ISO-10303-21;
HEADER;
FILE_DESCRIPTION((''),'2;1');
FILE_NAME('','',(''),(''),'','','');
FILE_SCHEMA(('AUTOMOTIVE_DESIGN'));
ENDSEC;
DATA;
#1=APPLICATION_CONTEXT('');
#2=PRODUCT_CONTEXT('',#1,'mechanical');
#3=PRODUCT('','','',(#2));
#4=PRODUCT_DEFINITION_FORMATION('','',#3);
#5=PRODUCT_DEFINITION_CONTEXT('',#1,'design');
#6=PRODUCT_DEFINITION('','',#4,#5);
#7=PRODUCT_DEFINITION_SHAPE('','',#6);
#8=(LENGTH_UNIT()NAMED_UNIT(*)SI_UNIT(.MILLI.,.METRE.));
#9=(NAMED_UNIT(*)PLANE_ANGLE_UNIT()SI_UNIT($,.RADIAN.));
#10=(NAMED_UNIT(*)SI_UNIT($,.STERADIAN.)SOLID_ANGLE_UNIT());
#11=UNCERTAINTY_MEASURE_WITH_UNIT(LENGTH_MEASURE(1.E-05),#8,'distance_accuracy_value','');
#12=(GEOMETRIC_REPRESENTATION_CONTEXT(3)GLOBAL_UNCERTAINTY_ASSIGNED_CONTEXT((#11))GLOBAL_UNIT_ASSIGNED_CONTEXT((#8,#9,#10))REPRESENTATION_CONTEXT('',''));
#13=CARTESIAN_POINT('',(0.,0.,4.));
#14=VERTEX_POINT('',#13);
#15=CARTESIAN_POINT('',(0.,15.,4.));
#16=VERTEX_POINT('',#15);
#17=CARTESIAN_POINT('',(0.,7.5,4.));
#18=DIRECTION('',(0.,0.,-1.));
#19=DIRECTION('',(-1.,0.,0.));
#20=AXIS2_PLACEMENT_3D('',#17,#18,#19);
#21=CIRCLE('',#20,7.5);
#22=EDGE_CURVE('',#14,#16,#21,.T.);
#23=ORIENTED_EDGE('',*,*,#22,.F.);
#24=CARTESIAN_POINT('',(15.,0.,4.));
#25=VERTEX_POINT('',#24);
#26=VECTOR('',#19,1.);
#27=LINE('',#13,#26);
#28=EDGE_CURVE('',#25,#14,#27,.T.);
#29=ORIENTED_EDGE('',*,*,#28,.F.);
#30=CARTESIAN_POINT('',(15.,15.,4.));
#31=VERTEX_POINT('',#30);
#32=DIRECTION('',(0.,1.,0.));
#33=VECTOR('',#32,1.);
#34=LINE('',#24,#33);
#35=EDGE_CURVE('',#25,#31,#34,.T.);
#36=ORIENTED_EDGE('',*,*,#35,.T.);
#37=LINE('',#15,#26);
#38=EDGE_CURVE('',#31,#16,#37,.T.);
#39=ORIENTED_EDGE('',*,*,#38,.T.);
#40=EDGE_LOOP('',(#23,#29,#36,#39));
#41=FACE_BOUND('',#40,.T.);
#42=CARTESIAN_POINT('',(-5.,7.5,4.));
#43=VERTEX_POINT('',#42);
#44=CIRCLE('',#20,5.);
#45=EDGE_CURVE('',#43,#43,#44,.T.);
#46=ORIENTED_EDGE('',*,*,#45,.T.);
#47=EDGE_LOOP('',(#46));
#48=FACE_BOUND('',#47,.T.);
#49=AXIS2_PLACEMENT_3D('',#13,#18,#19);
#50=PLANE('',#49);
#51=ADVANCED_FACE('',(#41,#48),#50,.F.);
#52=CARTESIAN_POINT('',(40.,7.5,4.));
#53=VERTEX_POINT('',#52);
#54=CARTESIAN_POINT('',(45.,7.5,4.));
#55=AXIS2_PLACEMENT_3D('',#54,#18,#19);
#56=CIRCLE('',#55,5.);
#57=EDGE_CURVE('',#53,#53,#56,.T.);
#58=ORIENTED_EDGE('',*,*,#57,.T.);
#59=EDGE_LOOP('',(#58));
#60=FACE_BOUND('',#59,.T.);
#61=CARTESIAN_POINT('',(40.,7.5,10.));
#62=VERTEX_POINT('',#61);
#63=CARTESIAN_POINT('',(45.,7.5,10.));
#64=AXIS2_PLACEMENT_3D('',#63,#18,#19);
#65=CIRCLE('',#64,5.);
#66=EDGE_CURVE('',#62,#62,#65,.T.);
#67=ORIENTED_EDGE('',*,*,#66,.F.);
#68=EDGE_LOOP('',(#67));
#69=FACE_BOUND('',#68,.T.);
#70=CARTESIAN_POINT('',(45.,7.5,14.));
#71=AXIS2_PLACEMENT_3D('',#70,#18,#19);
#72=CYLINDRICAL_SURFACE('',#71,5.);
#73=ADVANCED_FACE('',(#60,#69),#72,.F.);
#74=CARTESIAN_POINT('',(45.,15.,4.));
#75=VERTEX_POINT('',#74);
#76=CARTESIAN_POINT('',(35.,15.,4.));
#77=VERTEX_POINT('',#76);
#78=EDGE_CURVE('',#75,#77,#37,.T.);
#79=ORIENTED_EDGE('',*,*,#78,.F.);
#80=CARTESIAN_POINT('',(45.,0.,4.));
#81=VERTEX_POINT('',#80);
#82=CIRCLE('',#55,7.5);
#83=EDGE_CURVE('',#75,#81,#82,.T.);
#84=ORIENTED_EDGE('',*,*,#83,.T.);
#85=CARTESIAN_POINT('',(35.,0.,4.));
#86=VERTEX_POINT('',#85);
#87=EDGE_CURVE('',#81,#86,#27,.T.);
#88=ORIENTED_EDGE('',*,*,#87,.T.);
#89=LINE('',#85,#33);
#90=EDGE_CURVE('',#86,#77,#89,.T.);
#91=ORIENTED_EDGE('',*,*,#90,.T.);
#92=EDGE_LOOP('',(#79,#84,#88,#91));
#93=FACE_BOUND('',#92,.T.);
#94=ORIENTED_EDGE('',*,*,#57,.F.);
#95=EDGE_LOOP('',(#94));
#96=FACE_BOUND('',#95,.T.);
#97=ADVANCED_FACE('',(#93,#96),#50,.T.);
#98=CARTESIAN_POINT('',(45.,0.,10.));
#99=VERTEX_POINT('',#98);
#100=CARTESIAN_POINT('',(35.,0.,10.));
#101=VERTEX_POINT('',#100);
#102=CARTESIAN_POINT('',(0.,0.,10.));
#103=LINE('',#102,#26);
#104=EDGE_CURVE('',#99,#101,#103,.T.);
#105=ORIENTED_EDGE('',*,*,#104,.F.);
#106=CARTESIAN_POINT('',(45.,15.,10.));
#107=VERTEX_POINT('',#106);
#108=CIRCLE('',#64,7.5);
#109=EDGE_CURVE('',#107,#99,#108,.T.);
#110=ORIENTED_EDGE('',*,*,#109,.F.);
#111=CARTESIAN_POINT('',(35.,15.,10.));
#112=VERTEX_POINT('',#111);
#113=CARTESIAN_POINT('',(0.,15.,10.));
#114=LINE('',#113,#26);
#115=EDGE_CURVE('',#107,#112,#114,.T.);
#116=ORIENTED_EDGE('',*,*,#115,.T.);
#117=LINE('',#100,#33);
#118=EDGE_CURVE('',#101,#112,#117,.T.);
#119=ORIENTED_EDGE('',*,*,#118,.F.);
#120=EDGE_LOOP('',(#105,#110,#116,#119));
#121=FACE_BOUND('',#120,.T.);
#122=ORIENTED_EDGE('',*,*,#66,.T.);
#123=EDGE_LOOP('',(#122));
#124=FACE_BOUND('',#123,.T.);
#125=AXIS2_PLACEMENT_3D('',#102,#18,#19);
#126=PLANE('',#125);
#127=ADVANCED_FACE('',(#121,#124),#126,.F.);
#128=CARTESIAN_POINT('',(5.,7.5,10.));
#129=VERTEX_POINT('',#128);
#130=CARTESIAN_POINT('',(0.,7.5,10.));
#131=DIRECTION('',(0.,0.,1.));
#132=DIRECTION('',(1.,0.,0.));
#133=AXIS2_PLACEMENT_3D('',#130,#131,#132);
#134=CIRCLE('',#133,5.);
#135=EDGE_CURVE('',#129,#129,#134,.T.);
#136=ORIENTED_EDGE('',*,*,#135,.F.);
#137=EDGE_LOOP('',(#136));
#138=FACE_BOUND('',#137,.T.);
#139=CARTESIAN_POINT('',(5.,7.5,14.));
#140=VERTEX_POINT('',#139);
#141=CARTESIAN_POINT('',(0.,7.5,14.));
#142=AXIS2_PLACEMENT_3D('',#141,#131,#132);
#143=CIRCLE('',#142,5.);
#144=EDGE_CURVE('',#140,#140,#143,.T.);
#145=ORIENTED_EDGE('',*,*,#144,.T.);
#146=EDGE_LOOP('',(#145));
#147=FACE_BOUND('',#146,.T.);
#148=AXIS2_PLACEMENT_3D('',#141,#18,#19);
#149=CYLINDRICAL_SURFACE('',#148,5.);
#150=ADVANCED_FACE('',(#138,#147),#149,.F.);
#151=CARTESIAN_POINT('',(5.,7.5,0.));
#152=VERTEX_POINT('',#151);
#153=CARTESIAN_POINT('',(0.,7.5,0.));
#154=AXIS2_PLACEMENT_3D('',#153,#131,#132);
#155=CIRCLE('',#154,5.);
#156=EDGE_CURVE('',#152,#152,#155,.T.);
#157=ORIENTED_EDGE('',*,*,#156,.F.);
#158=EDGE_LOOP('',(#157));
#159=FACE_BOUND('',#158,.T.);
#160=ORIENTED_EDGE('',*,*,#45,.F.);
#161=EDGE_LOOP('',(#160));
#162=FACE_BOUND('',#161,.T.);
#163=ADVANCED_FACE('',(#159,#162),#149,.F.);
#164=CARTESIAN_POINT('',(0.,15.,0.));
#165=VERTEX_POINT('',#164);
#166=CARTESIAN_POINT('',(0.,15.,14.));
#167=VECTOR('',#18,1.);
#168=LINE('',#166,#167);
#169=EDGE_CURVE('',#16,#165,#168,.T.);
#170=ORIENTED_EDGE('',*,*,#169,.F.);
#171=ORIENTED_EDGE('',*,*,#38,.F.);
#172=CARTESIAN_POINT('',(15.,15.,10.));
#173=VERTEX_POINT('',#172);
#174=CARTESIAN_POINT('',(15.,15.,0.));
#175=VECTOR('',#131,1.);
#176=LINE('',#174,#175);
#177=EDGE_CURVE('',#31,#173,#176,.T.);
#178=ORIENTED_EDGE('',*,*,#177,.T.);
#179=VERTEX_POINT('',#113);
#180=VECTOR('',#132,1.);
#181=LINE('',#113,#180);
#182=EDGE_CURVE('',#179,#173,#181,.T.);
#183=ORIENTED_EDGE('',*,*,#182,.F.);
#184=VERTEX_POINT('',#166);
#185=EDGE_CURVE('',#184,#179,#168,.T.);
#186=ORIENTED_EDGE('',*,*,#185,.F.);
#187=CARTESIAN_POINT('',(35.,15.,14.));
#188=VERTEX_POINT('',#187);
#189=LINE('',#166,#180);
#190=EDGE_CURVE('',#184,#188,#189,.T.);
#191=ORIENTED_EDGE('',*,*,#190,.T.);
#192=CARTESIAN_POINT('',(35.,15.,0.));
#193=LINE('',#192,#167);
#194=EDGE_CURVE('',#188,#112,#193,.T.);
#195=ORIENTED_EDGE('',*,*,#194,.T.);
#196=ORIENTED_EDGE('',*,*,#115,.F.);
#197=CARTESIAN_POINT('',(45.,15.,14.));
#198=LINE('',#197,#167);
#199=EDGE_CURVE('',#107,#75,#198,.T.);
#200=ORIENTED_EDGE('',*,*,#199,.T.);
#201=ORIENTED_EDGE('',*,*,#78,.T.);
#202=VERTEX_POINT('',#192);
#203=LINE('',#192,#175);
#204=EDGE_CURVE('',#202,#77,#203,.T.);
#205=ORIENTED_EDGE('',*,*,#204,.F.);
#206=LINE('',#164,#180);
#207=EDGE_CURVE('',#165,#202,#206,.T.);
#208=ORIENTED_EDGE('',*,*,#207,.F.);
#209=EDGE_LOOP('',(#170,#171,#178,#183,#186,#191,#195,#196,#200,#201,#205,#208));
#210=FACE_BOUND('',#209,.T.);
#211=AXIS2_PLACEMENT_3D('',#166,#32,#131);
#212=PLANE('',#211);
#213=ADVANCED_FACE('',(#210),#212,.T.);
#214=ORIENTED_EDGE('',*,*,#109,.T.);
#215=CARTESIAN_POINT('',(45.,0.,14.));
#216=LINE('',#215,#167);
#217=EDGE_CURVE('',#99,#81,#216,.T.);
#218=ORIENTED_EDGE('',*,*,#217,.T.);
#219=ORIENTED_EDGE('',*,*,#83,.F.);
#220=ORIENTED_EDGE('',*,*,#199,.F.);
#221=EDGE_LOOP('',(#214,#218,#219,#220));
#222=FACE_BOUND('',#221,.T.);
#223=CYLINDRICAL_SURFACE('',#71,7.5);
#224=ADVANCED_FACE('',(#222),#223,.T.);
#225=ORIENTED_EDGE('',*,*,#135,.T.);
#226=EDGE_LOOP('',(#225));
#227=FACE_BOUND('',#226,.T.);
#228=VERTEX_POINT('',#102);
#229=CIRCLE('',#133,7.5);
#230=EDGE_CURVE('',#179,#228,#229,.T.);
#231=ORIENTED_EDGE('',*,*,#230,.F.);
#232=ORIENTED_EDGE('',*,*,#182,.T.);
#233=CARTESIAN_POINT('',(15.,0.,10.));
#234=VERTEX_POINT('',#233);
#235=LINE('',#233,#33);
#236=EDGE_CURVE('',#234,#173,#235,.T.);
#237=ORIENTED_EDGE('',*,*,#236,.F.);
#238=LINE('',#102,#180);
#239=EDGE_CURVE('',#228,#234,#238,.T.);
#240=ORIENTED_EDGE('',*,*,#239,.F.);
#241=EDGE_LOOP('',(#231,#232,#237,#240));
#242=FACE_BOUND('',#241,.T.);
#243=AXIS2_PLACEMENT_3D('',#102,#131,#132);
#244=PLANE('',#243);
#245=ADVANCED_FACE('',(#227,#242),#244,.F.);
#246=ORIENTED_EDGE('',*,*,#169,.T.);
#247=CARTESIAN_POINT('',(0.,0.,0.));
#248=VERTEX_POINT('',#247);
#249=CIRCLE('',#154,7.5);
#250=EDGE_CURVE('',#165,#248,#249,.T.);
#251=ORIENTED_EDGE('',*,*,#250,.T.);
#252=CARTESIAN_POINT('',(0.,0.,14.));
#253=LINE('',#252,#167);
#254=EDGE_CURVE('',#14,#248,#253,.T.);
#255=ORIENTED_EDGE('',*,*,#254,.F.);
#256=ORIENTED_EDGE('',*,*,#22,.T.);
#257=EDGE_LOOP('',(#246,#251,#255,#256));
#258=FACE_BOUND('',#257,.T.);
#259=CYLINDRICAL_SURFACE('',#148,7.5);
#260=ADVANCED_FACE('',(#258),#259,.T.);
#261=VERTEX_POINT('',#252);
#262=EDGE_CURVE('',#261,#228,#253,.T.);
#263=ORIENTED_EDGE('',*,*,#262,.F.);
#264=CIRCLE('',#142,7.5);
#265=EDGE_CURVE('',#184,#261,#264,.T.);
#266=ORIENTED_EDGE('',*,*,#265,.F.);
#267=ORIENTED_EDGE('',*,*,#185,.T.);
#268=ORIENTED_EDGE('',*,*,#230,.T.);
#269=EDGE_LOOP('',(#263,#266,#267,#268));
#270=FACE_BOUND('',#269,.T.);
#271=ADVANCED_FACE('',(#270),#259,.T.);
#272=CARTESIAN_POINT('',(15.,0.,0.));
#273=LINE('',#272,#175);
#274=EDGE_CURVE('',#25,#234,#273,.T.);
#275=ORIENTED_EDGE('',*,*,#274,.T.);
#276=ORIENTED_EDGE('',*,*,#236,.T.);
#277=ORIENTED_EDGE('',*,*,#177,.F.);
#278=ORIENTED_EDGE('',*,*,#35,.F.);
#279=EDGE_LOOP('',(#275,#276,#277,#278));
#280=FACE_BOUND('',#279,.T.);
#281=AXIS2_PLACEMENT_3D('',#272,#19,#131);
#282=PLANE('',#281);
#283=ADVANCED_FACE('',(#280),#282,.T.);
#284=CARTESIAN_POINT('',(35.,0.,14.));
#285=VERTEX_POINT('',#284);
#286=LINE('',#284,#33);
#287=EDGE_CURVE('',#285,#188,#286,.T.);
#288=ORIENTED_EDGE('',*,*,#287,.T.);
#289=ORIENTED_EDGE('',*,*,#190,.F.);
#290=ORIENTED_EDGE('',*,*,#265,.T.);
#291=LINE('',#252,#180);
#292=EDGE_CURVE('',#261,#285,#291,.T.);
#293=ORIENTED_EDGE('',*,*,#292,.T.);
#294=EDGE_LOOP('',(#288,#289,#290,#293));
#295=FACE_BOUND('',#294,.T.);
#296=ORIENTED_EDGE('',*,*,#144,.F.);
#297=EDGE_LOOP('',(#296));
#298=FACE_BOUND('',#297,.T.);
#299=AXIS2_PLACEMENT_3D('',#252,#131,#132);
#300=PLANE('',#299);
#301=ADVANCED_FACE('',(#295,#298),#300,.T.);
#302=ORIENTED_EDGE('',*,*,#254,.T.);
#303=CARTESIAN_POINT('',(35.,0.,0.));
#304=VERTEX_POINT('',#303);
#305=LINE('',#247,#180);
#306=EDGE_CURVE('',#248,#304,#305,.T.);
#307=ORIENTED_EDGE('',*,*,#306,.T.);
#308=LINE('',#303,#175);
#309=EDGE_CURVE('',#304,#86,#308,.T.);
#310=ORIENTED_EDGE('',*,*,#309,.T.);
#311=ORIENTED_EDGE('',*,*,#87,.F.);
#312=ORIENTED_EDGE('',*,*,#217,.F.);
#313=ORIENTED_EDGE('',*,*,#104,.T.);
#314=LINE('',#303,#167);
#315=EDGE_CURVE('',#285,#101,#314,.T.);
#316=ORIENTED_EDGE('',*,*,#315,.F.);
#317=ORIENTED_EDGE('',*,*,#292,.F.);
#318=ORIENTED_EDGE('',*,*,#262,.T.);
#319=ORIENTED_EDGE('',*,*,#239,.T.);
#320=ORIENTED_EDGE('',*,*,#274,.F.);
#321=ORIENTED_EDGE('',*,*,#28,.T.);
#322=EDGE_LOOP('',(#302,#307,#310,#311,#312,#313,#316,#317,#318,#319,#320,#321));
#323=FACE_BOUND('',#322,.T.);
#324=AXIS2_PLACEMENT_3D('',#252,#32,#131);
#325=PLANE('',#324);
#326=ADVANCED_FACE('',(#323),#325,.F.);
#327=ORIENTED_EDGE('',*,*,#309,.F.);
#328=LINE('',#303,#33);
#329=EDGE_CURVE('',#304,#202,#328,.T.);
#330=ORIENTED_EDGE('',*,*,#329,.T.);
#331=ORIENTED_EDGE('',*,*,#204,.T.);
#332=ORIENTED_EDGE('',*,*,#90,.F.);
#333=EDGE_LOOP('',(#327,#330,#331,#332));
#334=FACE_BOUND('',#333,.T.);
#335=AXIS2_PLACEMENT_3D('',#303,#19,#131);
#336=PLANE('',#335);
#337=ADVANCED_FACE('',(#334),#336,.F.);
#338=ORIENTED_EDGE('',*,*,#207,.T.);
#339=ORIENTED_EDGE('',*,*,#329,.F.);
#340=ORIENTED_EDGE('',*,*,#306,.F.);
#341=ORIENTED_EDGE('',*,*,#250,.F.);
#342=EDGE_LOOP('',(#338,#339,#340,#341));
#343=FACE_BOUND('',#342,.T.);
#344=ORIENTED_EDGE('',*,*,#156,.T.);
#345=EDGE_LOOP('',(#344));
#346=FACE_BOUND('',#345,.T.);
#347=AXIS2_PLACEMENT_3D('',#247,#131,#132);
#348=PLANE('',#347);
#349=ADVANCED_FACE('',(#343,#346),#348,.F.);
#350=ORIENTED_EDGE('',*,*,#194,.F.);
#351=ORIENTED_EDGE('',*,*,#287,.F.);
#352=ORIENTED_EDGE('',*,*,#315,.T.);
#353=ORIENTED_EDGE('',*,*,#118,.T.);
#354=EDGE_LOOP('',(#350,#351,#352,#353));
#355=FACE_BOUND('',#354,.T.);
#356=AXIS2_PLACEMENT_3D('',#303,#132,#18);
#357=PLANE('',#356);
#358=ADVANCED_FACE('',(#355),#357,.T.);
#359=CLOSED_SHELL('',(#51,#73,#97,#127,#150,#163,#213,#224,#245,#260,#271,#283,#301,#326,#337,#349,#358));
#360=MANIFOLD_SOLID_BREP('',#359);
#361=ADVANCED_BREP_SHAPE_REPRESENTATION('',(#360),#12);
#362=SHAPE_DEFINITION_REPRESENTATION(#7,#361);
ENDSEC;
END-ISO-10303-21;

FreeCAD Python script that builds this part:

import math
import FreeCAD as App
import Part
import Sketcher
from FreeCAD import Vector

doc = App.newDocument("Part")
body = doc.addObject("PartDesign::Body", "Body")

# Sketch on XY plane
sketch1 = body.newObject("Sketcher::SketchObject", "Sketch")
sketch1.AttachmentSupport = (doc.getObject("XY_Plane"), [""])
sketch1.MapMode = "FlatFace"
sketch1.addGeometry(Part.ArcOfCircle(Part.Circle(Vector(45, 7.5, 0), Vector(0, 0, 1), 7.5), math.radians(-90), math.radians(0)), False)
sketch1.addGeometry(Part.ArcOfCircle(Part.Circle(Vector(45, 7.5, 0), Vector(0, 0, 1), 7.5), math.radians(0), math.radians(90)), False)
sketch1.addGeometry(Part.LineSegment(Vector(45, 15, 0), Vector(0, 15, 0)), False)
sketch1.addGeometry(Part.ArcOfCircle(Part.Circle(Vector(0, 7.5, 0), Vector(0, 0, 1), 7.5), math.radians(90), math.radians(270)), False)
sketch1.addGeometry(Part.LineSegment(Vector(0, 0, 0), Vector(45, 0, 0)), False)
sketch1.addGeometry(Part.ArcOfCircle(Part.Circle(Vector(45, 7.5, 0), Vector(0, 0, 1), 5), math.radians(90), math.radians(270)), False)
sketch1.addGeometry(Part.ArcOfCircle(Part.Circle(Vector(45, 7.5, 0), Vector(0, 0, 1), 5), math.radians(0), math.radians(90)), False)
sketch1.addGeometry(Part.ArcOfCircle(Part.Circle(Vector(45, 7.5, 0), Vector(0, 0, 1), 5), math.radians(-90), math.radians(0)), False)
sketch1.addGeometry(Part.ArcOfCircle(Part.Circle(Vector(0, 7.5, 0), Vector(0, 0, 1), 5), math.radians(0), math.radians(90)), False)
sketch1.addGeometry(Part.ArcOfCircle(Part.Circle(Vector(0, 7.5, 0), Vector(0, 0, 1), 5), math.radians(-90), math.radians(0)), False)
sketch1.addGeometry(Part.ArcOfCircle(Part.Circle(Vector(0, 7.5, 0), Vector(0, 0, 1), 5), math.radians(90), math.radians(270)), False)
sketch1.addConstraint(Sketcher.Constraint("Tangent", 0, 2, 1, 1))
sketch1.addConstraint(Sketcher.Constraint("Tangent", 1, 2, 2, 1))
sketch1.addConstraint(Sketcher.Constraint("Tangent", 2, 2, 3, 1))
sketch1.addConstraint(Sketcher.Constraint("Tangent", 3, 2, 4, 1))
sketch1.addConstraint(Sketcher.Constraint("Tangent", 4, 2, 0, 1))
sketch1.addConstraint(Sketcher.Constraint("Tangent", 5, 1, 6, 2))
sketch1.addConstraint(Sketcher.Constraint("Tangent", 6, 1, 7, 2))
sketch1.addConstraint(Sketcher.Constraint("Tangent", 7, 1, 5, 2))
sketch1.addConstraint(Sketcher.Constraint("Tangent", 8, 1, 9, 2))
sketch1.addConstraint(Sketcher.Constraint("Tangent", 9, 1, 10, 2))
sketch1.addConstraint(Sketcher.Constraint("Tangent", 10, 1, 8, 2))
sketch1.addConstraint(Sketcher.Constraint("Horizontal", 2))
sketch1.addConstraint(Sketcher.Constraint("Horizontal", 4))
sketch1.addConstraint(Sketcher.Constraint("Coincident", 3, 2, -1, 1))
sketch1.addConstraint(Sketcher.Constraint("Coincident", 5, 3, 0, 3))
sketch1.addConstraint(Sketcher.Constraint("Coincident", 8, 3, 3, 3))
sketch1.addConstraint(Sketcher.Constraint("Equal", 0, 1))
sketch1.addConstraint(Sketcher.Constraint("Equal", 7, 8))
sketch1.addConstraint(Sketcher.Constraint("PointOnObject", 9, 1, -2))
sketch1.addConstraint(Sketcher.Constraint("PointOnObject", 10, 1, -2))
sketch1.addConstraint(Sketcher.Constraint("Horizontal", 10, 3, 0, 2))
sketch1.addConstraint(Sketcher.Constraint("Horizontal", 0, 2, 6, 1))
sketch1.addConstraint(Sketcher.Constraint("Horizontal", 6, 1, 8, 1))
sketch1.addConstraint(Sketcher.Constraint("Vertical", 4, 2, 5, 1))
sketch1.addConstraint(Sketcher.Constraint("Vertical", 5, 1, 7, 1))
sketch1.addConstraint(Sketcher.Constraint("Radius", 5, 5.0))
sketch1.addConstraint(Sketcher.Constraint("Radius", 0, 7.5))
sketch1.addConstraint(Sketcher.Constraint("DistanceX", 2, 2, 2, 1, 45.0))
pad1 = body.newObject("PartDesign::Pad", "Pad")
pad1.Profile = sketch1
pad1.Length = 14

# Sketch on XZ plane
sketch2 = body.newObject("Sketcher::SketchObject", "Sketch001")
sketch2.AttachmentSupport = (doc.getObject("XZ_Plane"), [""])
sketch2.MapMode = "FlatFace"
sketch2.AttachmentOffset = App.Placement(Vector(0, 0, -15), App.Rotation())
sketch2.addGeometry(Part.LineSegment(Vector(-7.5, 4, 0), Vector(-7.5, 10, 0)), False)
sketch2.addGeometry(Part.LineSegment(Vector(-7.5, 10, 0), Vector(15, 10, 0)), False)
sketch2.addGeometry(Part.LineSegment(Vector(15, 10, 0), Vector(15, 4, 0)), False)
sketch2.addGeometry(Part.LineSegment(Vector(15, 4, 0), Vector(-7.5, 4, 0)), False)
sketch2.addGeometry(Part.LineSegment(Vector(35, 0, 0), Vector(35, 4, 0)), False)
sketch2.addGeometry(Part.LineSegment(Vector(35, 4, 0), Vector(52.5, 4, 0)), False)
sketch2.addGeometry(Part.LineSegment(Vector(52.5, 4, 0), Vector(52.5, 0, 0)), False)
sketch2.addGeometry(Part.LineSegment(Vector(52.5, 0, 0), Vector(35, 0, 0)), False)
sketch2.addGeometry(Part.LineSegment(Vector(52.5, 14, 0), Vector(52.5, 10, 0)), False)
sketch2.addGeometry(Part.LineSegment(Vector(52.5, 10, 0), Vector(35, 10, 0)), False)
sketch2.addGeometry(Part.LineSegment(Vector(35, 10, 0), Vector(35, 14, 0)), False)
sketch2.addGeometry(Part.LineSegment(Vector(35, 14, 0), Vector(52.5, 14, 0)), False)
sketch2.addConstraint(Sketcher.Constraint("Coincident", 0, 2, 1, 1))
sketch2.addConstraint(Sketcher.Constraint("Coincident", 1, 2, 2, 1))
sketch2.addConstraint(Sketcher.Constraint("Coincident", 2, 2, 3, 1))
sketch2.addConstraint(Sketcher.Constraint("Coincident", 3, 2, 0, 1))
sketch2.addConstraint(Sketcher.Constraint("Coincident", 4, 2, 5, 1))
sketch2.addConstraint(Sketcher.Constraint("Coincident", 5, 2, 6, 1))
sketch2.addConstraint(Sketcher.Constraint("Coincident", 6, 2, 7, 1))
sketch2.addConstraint(Sketcher.Constraint("Coincident", 7, 2, 4, 1))
sketch2.addConstraint(Sketcher.Constraint("Coincident", 8, 2, 9, 1))
sketch2.addConstraint(Sketcher.Constraint("Coincident", 9, 2, 10, 1))
sketch2.addConstraint(Sketcher.Constraint("Coincident", 10, 2, 11, 1))
sketch2.addConstraint(Sketcher.Constraint("Coincident", 11, 2, 8, 1))
sketch2.addConstraint(Sketcher.Constraint("Vertical", 0))
sketch2.addConstraint(Sketcher.Constraint("Horizontal", 1))
sketch2.addConstraint(Sketcher.Constraint("Vertical", 2))
sketch2.addConstraint(Sketcher.Constraint("Horizontal", 3))
sketch2.addConstraint(Sketcher.Constraint("Vertical", 4))
sketch2.addConstraint(Sketcher.Constraint("Horizontal", 5))
sketch2.addConstraint(Sketcher.Constraint("Vertical", 6))
sketch2.addConstraint(Sketcher.Constraint("Horizontal", 7))
sketch2.addConstraint(Sketcher.Constraint("Vertical", 8))
sketch2.addConstraint(Sketcher.Constraint("Horizontal", 9))
sketch2.addConstraint(Sketcher.Constraint("Vertical", 10))
sketch2.addConstraint(Sketcher.Constraint("Horizontal", 11))
sketch2.addConstraint(Sketcher.Constraint("PointOnObject", 6, 2, -1))
sketch2.addConstraint(Sketcher.Constraint("Horizontal", 3, 2, 4, 2))
sketch2.addConstraint(Sketcher.Constraint("Horizontal", 1, 2, 8, 2))
sketch2.addConstraint(Sketcher.Constraint("Vertical", 6, 2, 8, 2))
sketch2.addConstraint(Sketcher.Constraint("Vertical", 7, 2, 9, 2))
sketch2.addConstraint(Sketcher.Constraint("Equal", 6, 8))
sketch2.addConstraint(Sketcher.Constraint("DistanceY", 0, 1, 0, 2, 6.0))
sketch2.addConstraint(Sketcher.Constraint("DistanceY", 4, 1, 4, 2, 4.0))
sketch2.addConstraint(Sketcher.Constraint("DistanceX", 1, 1, 1, 2, 22.5))
sketch2.addConstraint(Sketcher.Constraint("DistanceX", 5, 1, 5, 2, 17.5))
sketch2.addConstraint(Sketcher.Constraint("DistanceX", -1, 1, 1, 2, 15.0))
sketch2.addConstraint(Sketcher.Constraint("DistanceX", -1, 1, 4, 2, 35.0))
pocket1 = body.newObject("PartDesign::Pocket", "Pocket")
pocket1.Profile = sketch2
pocket1.Length = 15
pocket1.Reversed = True

doc.recompute()
